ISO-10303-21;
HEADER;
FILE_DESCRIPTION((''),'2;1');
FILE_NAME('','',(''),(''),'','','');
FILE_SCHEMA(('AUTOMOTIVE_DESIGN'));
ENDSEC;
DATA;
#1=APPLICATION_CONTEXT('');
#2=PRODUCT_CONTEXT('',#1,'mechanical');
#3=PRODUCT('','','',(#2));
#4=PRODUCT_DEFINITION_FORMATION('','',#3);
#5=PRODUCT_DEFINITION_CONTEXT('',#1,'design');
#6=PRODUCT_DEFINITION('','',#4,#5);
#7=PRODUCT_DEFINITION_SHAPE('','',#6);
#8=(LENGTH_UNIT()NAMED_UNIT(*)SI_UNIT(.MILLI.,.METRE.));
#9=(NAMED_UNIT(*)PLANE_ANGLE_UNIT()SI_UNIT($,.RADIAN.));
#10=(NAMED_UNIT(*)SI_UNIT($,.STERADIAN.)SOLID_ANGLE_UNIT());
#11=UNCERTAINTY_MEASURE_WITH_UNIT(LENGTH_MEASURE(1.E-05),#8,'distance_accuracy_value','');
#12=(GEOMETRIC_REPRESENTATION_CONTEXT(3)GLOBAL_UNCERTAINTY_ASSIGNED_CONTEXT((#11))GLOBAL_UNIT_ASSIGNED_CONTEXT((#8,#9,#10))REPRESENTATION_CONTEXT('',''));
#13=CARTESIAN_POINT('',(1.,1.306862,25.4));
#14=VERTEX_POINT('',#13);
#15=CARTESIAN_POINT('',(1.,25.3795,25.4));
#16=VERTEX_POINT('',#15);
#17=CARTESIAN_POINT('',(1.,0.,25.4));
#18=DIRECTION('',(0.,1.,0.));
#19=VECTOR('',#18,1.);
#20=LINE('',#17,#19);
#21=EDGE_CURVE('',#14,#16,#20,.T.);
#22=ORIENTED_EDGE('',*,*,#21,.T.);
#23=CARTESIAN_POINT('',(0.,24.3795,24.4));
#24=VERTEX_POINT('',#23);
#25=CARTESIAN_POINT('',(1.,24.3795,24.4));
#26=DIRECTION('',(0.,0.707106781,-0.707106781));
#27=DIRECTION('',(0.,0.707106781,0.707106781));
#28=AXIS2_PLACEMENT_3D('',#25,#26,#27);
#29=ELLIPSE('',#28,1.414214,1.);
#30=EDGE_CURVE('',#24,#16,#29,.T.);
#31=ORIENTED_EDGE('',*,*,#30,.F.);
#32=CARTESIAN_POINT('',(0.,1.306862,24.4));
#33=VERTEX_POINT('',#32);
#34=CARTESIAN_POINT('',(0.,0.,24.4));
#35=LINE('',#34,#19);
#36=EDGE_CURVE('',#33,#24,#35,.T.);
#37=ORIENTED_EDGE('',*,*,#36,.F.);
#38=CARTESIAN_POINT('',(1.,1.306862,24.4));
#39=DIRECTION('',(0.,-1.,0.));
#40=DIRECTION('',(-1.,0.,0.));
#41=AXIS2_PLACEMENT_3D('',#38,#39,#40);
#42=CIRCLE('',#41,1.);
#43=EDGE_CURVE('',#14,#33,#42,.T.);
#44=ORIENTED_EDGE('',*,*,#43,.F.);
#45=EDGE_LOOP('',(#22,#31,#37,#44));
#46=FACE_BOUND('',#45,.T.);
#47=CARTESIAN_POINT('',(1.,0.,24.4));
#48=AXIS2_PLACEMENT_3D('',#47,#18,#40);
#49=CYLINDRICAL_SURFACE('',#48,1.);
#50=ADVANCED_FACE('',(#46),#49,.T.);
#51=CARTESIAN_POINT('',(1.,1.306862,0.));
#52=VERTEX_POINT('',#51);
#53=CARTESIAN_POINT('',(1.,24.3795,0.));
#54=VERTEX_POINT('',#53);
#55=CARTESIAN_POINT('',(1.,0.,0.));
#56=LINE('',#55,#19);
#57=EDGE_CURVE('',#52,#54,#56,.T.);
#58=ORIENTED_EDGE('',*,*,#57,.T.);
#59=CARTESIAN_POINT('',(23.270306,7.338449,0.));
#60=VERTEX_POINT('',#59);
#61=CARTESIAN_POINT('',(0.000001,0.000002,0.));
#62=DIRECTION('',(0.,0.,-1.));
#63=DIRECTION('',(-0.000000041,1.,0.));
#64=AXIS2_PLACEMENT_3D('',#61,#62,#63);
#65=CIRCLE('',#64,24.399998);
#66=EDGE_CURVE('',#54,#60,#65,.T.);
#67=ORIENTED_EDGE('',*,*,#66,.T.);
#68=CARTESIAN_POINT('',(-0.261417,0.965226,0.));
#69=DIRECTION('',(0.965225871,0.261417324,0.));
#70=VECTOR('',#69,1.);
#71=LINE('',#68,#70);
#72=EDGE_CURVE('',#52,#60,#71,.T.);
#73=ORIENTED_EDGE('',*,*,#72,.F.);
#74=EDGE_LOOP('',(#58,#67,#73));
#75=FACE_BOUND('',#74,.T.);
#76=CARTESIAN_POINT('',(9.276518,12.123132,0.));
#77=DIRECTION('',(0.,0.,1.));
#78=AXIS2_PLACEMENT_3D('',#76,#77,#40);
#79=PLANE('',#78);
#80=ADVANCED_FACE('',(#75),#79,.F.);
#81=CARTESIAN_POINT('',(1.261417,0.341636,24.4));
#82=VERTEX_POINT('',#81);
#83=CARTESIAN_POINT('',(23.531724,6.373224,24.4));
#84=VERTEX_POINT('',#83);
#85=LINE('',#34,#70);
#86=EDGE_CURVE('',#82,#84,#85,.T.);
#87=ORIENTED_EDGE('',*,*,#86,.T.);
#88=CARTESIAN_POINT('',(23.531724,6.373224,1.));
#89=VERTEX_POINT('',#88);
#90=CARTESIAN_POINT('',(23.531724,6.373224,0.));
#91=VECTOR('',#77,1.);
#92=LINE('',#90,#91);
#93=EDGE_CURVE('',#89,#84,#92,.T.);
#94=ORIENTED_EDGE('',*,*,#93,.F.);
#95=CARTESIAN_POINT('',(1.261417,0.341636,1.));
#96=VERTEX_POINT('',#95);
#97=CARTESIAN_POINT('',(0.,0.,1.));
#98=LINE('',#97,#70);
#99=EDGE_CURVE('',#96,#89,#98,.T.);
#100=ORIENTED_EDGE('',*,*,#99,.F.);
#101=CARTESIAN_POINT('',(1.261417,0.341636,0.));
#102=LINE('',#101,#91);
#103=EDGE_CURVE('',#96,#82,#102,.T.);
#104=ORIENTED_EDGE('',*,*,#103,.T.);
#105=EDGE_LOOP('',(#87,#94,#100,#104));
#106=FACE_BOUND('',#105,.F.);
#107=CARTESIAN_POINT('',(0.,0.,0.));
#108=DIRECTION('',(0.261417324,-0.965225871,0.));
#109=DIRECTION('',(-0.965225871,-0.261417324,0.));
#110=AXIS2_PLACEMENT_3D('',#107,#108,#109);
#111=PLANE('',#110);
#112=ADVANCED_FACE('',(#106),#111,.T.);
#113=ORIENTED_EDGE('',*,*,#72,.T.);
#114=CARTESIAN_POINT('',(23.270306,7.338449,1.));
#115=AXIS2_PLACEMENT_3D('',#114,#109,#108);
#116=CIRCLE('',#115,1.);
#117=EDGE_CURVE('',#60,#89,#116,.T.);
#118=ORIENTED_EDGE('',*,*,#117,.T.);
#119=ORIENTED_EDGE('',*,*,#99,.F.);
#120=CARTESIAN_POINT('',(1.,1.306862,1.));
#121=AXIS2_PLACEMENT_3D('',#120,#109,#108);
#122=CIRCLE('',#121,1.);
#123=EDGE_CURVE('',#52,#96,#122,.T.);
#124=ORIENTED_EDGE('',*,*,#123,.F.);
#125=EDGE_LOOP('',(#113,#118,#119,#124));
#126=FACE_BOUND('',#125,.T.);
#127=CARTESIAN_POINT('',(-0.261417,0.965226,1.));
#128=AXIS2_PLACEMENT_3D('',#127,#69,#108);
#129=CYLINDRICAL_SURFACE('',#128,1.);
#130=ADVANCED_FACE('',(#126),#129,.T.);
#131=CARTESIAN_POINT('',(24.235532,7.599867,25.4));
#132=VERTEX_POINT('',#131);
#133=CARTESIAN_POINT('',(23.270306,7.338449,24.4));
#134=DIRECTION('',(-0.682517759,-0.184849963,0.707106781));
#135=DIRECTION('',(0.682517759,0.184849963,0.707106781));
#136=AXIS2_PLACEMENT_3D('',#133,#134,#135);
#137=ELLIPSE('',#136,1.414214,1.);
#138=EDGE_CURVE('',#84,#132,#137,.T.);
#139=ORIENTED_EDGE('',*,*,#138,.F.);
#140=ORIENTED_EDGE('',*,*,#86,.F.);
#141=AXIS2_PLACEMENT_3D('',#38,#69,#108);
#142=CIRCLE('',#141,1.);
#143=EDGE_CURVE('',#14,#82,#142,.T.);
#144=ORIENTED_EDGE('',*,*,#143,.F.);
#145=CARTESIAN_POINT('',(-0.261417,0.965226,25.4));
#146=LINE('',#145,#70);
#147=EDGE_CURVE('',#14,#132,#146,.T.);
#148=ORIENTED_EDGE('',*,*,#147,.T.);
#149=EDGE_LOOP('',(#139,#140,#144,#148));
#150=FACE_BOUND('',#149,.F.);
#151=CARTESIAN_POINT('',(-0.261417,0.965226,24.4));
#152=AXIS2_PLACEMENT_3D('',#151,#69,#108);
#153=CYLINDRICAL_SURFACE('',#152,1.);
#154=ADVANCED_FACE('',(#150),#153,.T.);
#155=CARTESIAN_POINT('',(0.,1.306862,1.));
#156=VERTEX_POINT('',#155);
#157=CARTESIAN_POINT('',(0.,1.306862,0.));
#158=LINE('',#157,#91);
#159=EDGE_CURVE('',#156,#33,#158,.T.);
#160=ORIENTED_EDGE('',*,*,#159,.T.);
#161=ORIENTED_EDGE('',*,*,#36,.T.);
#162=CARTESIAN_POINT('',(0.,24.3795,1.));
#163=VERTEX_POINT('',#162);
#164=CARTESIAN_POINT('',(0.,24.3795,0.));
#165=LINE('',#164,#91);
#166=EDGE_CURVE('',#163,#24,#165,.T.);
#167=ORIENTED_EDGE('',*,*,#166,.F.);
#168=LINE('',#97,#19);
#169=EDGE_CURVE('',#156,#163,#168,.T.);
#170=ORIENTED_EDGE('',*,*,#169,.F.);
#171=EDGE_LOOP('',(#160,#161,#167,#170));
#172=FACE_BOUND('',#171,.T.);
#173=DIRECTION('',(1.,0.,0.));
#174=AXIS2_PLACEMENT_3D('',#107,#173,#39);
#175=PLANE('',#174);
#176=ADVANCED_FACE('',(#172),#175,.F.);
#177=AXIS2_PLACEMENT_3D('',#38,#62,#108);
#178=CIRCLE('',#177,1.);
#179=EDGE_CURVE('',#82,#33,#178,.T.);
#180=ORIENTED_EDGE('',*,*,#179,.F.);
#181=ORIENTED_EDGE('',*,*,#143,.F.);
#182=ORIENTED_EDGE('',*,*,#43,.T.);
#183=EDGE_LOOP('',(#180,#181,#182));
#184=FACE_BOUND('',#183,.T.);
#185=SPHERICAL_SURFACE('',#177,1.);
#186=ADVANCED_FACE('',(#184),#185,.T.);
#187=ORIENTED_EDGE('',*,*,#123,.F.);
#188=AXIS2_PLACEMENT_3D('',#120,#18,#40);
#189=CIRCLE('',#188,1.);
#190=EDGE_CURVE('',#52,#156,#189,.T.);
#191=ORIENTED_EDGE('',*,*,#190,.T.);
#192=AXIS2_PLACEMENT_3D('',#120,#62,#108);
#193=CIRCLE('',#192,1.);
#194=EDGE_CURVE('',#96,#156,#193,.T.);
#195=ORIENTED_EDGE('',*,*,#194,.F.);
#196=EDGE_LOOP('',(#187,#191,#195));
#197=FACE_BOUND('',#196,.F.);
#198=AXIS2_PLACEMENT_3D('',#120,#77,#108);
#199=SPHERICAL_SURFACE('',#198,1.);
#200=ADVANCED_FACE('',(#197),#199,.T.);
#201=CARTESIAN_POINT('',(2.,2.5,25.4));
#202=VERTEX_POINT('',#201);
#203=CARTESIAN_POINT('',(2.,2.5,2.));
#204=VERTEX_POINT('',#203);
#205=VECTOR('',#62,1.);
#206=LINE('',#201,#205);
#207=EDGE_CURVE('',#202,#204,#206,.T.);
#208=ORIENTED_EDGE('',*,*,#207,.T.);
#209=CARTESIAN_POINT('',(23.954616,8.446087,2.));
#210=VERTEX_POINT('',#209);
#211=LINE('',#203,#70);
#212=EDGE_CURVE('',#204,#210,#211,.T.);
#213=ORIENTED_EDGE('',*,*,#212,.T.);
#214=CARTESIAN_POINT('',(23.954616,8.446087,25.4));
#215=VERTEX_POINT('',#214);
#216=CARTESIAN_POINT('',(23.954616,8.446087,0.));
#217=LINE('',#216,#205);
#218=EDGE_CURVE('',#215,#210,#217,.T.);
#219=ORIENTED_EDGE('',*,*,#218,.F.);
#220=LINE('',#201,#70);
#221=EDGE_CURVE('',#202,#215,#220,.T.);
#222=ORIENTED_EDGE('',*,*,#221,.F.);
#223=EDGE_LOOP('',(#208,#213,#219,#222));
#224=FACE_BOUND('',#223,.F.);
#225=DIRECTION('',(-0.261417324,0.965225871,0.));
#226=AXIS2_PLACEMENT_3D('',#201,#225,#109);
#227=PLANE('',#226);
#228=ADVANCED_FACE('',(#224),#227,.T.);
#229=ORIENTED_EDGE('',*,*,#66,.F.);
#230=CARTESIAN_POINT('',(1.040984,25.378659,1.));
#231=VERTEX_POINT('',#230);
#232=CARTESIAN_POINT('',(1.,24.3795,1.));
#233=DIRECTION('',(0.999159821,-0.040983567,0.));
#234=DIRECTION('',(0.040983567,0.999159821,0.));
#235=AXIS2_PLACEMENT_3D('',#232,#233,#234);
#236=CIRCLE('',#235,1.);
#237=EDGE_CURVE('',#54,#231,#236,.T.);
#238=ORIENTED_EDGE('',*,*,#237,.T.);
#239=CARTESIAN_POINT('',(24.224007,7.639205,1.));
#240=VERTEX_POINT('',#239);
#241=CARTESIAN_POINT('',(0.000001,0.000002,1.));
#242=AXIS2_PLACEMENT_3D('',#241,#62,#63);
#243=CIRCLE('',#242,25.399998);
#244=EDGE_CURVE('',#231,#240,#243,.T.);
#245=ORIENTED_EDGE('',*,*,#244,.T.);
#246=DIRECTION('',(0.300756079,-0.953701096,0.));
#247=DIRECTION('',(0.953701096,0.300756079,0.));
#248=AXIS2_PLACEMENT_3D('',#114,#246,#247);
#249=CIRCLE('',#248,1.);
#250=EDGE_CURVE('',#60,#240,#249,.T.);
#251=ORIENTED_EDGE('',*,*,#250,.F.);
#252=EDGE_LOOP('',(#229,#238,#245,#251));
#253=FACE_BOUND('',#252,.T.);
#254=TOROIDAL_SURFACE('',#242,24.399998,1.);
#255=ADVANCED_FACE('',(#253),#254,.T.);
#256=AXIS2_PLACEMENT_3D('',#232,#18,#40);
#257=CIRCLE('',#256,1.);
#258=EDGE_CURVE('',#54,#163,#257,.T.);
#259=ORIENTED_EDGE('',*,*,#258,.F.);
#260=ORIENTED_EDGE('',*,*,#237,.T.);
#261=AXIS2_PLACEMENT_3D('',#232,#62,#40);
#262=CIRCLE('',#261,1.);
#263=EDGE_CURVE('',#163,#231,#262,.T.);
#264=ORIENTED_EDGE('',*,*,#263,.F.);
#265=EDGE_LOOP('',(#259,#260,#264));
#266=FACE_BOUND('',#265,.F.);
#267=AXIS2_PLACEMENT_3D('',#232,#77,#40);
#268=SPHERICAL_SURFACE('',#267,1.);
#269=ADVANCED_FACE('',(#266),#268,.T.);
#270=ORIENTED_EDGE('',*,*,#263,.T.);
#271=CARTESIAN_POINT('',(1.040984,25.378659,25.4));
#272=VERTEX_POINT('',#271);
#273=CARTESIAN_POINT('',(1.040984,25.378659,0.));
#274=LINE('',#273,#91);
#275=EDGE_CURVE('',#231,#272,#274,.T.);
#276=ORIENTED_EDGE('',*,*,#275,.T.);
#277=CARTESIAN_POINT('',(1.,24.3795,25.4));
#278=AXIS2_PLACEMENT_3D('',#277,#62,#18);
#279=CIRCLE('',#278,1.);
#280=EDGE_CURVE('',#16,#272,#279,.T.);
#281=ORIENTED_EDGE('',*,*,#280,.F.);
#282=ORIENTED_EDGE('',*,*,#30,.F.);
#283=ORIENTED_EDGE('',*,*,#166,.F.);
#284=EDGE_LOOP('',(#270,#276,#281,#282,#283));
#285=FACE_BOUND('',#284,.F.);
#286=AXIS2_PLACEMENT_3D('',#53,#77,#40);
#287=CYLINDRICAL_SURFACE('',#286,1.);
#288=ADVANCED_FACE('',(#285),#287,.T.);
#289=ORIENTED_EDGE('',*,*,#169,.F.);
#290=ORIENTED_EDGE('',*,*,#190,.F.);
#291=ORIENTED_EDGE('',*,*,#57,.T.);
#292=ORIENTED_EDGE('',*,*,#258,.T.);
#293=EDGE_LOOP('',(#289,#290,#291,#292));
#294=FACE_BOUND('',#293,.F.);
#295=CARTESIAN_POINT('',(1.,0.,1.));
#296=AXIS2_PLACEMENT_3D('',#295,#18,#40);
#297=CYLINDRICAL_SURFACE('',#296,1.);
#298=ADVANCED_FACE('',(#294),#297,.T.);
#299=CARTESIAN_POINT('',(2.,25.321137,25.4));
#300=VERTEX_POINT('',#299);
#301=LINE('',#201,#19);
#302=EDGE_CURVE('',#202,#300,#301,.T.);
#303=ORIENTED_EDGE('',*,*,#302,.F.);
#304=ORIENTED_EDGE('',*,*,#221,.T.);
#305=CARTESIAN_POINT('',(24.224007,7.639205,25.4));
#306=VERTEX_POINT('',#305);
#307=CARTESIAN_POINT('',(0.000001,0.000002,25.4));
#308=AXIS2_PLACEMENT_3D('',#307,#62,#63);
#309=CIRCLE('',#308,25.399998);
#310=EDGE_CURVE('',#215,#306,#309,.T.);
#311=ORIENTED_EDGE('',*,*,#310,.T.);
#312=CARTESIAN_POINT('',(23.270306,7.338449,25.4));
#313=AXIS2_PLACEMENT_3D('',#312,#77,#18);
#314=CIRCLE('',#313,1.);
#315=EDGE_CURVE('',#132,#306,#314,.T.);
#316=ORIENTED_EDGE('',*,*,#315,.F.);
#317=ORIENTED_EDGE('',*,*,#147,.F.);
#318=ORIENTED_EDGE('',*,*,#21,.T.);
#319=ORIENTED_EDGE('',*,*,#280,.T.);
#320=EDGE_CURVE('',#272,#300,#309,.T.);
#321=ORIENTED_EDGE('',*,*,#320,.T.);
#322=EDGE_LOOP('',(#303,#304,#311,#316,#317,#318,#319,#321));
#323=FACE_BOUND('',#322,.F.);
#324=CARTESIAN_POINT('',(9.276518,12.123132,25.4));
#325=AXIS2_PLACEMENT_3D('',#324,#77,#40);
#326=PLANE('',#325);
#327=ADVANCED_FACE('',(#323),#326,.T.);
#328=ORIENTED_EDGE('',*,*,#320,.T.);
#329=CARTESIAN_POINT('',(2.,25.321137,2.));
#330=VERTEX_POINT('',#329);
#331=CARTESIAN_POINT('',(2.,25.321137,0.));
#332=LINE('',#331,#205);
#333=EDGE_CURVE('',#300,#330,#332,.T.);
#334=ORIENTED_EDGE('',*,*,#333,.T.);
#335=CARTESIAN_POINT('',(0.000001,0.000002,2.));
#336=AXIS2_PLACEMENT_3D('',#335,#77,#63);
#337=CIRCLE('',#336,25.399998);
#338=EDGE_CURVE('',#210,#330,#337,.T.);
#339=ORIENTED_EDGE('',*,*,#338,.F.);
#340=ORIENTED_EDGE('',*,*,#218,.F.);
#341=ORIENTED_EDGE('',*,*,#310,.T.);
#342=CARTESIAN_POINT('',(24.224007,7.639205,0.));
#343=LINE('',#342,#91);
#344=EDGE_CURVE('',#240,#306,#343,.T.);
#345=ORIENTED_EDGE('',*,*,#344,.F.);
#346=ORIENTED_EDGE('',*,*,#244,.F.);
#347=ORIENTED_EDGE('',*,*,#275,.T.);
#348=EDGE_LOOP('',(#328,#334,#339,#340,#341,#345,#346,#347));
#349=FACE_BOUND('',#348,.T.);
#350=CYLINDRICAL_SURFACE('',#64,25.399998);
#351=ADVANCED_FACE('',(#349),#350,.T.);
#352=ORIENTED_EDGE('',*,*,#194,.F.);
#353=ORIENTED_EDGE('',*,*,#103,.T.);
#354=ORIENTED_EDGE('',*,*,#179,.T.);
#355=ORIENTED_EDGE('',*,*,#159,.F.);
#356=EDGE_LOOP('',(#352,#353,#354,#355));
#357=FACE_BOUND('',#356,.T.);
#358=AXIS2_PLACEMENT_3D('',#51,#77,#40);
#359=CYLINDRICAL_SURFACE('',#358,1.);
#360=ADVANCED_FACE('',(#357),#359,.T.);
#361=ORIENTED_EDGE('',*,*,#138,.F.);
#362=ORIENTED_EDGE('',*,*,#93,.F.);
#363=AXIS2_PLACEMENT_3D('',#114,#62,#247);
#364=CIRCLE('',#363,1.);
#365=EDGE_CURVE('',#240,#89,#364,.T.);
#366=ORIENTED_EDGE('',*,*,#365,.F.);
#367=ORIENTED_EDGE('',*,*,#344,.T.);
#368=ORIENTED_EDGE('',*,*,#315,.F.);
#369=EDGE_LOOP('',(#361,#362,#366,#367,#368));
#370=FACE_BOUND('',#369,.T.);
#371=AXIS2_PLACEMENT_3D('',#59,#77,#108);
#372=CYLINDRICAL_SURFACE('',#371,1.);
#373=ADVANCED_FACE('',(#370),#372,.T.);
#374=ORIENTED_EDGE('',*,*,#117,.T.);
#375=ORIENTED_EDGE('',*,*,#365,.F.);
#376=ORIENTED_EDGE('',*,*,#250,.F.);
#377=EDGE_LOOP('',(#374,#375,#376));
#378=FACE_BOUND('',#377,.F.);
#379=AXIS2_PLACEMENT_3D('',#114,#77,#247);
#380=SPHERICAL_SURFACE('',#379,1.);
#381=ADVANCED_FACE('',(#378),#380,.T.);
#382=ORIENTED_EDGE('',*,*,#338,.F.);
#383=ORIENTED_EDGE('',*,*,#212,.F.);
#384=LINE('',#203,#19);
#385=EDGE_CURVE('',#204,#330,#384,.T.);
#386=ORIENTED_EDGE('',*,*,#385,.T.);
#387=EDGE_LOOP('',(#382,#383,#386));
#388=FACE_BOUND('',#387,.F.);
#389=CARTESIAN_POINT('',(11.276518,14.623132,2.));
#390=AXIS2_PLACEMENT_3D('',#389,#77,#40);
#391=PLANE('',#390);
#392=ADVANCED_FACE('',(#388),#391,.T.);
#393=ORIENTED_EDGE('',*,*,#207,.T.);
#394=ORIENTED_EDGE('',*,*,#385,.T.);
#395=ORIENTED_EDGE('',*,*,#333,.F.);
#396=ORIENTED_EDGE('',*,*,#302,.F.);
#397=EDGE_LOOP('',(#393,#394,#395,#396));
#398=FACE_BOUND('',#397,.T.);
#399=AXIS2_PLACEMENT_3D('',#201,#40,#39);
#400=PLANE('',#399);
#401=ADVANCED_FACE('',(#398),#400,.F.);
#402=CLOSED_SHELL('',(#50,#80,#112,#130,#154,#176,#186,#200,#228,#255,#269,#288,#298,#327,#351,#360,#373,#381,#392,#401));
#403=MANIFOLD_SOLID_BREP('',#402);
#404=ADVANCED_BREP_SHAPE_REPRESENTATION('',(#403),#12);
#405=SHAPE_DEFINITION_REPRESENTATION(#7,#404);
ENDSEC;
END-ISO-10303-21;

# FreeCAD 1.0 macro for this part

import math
import FreeCAD as App
import Part
import Sketcher
Q = App.Units.Quantity


def edges_at(feature, points):
    """Names of the edges that pass closest to the given points."""
    edges = feature.Shape.Edges
    near = lambda p: min(range(len(edges)), key=lambda i: edges[i].distToShape(Part.Vertex(*p))[0])
    return sorted({f"Edge{near(p) + 1}" for p in points})

doc = App.newDocument("Part")
body = doc.addObject("PartDesign::Body", "Body")

sketch1 = body.newObject("Sketcher::SketchObject", "Sketch")
sketch1.AttachmentSupport = (doc.getObject("XY_Plane"), [""])
sketch1.MapMode = "FlatFace"
sketch1.addGeometry([
    Part.LineSegment(App.Vector(0, 0, 0), App.Vector(0, -25, 0)),
    Part.ArcOfCircle(Part.Circle(App.Vector(0, 0, 0), App.Vector(0, 0, 1), 25), math.radians(-90), math.radians(-15)),
    Part.LineSegment(App.Vector(25, -7, 0), App.Vector(0, 0, 0)),
], False)
sketch1.addConstraint([
    Sketcher.Constraint("Coincident", 0, 2, 1, 1),
    Sketcher.Constraint("Coincident", 1, 2, 2, 1),
    Sketcher.Constraint("Coincident", 2, 2, 0, 1),
    Sketcher.Constraint("Vertical", 0),
    Sketcher.Constraint("Coincident", 1, 3, -1, 1),
    Sketcher.Constraint("Coincident", 2, 2, -1, 1),
    Sketcher.Constraint("Radius", 1, Q("25.399998 mm")),
    Sketcher.Constraint("DistanceY", 1, 2, -1, 1, Q("6.64 mm")),
])
pad1 = body.newObject("PartDesign::Pad", "Pad")
pad1.Profile = sketch1
pad1.Length = 25.4

sketch2 = body.newObject("Sketcher::SketchObject", "Sketch001")
sketch2.AttachmentSupport = (doc.getObject("XY_Plane"), [""])
sketch2.MapMode = "FlatFace"
sketch2.AttachmentOffset = App.Placement(App.Vector(0, 0, 25.4), App.Rotation())
sketch2.addGeometry([
    Part.LineSegment(App.Vector(2, -2, 0), App.Vector(2, -28, 0)),
    Part.ArcOfCircle(Part.Circle(App.Vector(2, -3, 0), App.Vector(0, 0, 1), 25), math.radians(-90), math.radians(-15)),
    Part.LineSegment(App.Vector(27, -9, 0), App.Vector(2, -2, 0)),
], False)
sketch2.addConstraint([
    Sketcher.Constraint("Coincident", 0, 2, 1, 1),
    Sketcher.Constraint("Coincident", 1, 2, 2, 1),
    Sketcher.Constraint("Coincident", 2, 2, 0, 1),
    Sketcher.Constraint("Vertical", 0),
    Sketcher.Constraint("Coincident", 2, 2, 1, 3),
    Sketcher.Constraint("Radius", 1, Q("25.399998 mm")),
    Sketcher.Constraint("DistanceX", -1, 1, 1, 3, Q("2.000001 mm")),
    Sketcher.Constraint("DistanceY", 1, 3, -1, 1, Q("2.500002 mm")),
    Sketcher.Constraint("DistanceY", 1, 2, -1, 1, Q("9.14 mm")),
])
pocket1 = body.newObject("PartDesign::Pocket", "Pocket")
pocket1.Profile = sketch2
pocket1.Length = 23.4
doc.recompute()

fillet = body.newObject("PartDesign::Fillet", "Fillet")
fillet.Base = (pocket1, edges_at(pocket1, [
    (0, -25.4, 12.7),
    (0, -12.7, 25.4),
    (0, -12.7, 0),
    (0, 0, 12.7),
    (15.435, -20.172, 0),
    (12.258, -3.32, 0),
    (12.258, -3.32, 25.4),
    (24.517, -6.64, 12.7),
]))
fillet.Radius = 1
body2 = doc.addObject("PartDesign::Body", "Body001")
doc.recompute()

mirroring = doc.addObject("Part::Mirroring", "Mirroring")
mirroring.Source = body
mirroring.Base = App.Vector(0, 0, 0)
mirroring.Normal = App.Vector(0, 1, 0)
body2.BaseFeature = mirroring
doc.recompute()
body.Visibility = False
mirroring.Visibility = False

doc.recompute()
